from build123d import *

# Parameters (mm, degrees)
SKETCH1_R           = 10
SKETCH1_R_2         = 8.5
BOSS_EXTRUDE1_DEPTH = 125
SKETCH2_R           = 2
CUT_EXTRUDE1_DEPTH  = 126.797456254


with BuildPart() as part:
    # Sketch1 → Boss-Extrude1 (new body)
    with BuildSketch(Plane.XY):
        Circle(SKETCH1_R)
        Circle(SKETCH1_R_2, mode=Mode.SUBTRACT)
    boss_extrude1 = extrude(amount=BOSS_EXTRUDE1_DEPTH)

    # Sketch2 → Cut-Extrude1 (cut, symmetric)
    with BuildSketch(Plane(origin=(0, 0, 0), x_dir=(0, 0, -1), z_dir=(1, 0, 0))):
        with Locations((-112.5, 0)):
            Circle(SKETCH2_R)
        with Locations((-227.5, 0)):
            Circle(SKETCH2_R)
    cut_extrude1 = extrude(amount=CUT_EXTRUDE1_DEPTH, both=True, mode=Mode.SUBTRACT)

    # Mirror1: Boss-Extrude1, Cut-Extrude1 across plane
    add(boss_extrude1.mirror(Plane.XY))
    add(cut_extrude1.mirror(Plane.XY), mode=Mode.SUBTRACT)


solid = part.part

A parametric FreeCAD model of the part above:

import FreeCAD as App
import Part
import Sketcher
from FreeCAD import Vector

doc = App.newDocument("Part")
params = doc.addObject("Spreadsheet::Sheet", "Params")
for row, (alias, value) in enumerate([
    ("sketch1_diameter", "20 mm"),
    ("sketch1_diameter2", "17 mm"),
    ("pad1_length", "125 mm"),
    ("sketch2_diameter", "4 mm"),
    ("pocket1_length", "253.594913 mm"),
], start=1):
    params.set(f"A{row}", alias)
    params.set(f"B{row}", "=" + value)
    params.setAlias(f"B{row}", alias)

body = doc.addObject("PartDesign::Body", "Body")

# Sketch on XY plane
sketch1 = body.newObject("Sketcher::SketchObject", "Sketch")
sketch1.AttachmentSupport = (doc.getObject("XY_Plane"), [""])
sketch1.MapMode = "FlatFace"
sketch1.addGeometry([
    Part.Circle(Vector(0, 0, 0), Vector(0, 0, 1), 10),
    Part.Circle(Vector(0, 0, 0), Vector(0, 0, 1), 8.5),
], False)
sketch1.addConstraint([
    Sketcher.Constraint("Coincident", 0, 3, -1, 1),
    Sketcher.Constraint("Coincident", 1, 3, -1, 1),
    Sketcher.Constraint("Diameter", 0, 20.0),
    Sketcher.Constraint("Diameter", 1, 17.0),
])
sketch1.setExpression("Constraints[2]", "Params.sketch1_diameter")
sketch1.setExpression("Constraints[3]", "Params.sketch1_diameter2")
pad1 = body.newObject("PartDesign::Pad", "Pad")
pad1.Profile = sketch1
pad1.setExpression("Length", "Params.pad1_length")

# Sketch on YZ plane
sketch2 = body.newObject("Sketcher::SketchObject", "Sketch001")
sketch2.AttachmentSupport = (doc.getObject("YZ_Plane"), [""])
sketch2.MapMode = "FlatFace"
sketch2.addGeometry([
    Part.Circle(Vector(0, 112.5, 0), Vector(0, 0, 1), 2),
    Part.Circle(Vector(0, 227.5, 0), Vector(0, 0, 1), 2),
], False)
sketch2.addConstraint([
    Sketcher.Constraint("Equal", 0, 1),
    Sketcher.Constraint("PointOnObject", 0, 3, -2),
    Sketcher.Constraint("PointOnObject", 1, 3, -2),
    Sketcher.Constraint("Diameter", 0, 4.0),
    Sketcher.Constraint("DistanceY", 0, 3, 1, 3, 115.0),
    Sketcher.Constraint("DistanceY", -1, 1, 0, 3, 112.5),
])
sketch2.setExpression("Constraints[3]", "Params.sketch2_diameter")
pocket1 = body.newObject("PartDesign::Pocket", "Pocket")
pocket1.Profile = sketch2
pocket1.setExpression("Length", "Params.pocket1_length")
pocket1.Midplane = True
doc.recompute()

mirrored = body.newObject("PartDesign::Mirrored", "Mirrored")
mirrored.Originals = [pad1, pocket1]
mirrored.MirrorPlane = (doc.getObject("XY_Plane"), [""])
body.Tip = mirrored

doc.recompute()
